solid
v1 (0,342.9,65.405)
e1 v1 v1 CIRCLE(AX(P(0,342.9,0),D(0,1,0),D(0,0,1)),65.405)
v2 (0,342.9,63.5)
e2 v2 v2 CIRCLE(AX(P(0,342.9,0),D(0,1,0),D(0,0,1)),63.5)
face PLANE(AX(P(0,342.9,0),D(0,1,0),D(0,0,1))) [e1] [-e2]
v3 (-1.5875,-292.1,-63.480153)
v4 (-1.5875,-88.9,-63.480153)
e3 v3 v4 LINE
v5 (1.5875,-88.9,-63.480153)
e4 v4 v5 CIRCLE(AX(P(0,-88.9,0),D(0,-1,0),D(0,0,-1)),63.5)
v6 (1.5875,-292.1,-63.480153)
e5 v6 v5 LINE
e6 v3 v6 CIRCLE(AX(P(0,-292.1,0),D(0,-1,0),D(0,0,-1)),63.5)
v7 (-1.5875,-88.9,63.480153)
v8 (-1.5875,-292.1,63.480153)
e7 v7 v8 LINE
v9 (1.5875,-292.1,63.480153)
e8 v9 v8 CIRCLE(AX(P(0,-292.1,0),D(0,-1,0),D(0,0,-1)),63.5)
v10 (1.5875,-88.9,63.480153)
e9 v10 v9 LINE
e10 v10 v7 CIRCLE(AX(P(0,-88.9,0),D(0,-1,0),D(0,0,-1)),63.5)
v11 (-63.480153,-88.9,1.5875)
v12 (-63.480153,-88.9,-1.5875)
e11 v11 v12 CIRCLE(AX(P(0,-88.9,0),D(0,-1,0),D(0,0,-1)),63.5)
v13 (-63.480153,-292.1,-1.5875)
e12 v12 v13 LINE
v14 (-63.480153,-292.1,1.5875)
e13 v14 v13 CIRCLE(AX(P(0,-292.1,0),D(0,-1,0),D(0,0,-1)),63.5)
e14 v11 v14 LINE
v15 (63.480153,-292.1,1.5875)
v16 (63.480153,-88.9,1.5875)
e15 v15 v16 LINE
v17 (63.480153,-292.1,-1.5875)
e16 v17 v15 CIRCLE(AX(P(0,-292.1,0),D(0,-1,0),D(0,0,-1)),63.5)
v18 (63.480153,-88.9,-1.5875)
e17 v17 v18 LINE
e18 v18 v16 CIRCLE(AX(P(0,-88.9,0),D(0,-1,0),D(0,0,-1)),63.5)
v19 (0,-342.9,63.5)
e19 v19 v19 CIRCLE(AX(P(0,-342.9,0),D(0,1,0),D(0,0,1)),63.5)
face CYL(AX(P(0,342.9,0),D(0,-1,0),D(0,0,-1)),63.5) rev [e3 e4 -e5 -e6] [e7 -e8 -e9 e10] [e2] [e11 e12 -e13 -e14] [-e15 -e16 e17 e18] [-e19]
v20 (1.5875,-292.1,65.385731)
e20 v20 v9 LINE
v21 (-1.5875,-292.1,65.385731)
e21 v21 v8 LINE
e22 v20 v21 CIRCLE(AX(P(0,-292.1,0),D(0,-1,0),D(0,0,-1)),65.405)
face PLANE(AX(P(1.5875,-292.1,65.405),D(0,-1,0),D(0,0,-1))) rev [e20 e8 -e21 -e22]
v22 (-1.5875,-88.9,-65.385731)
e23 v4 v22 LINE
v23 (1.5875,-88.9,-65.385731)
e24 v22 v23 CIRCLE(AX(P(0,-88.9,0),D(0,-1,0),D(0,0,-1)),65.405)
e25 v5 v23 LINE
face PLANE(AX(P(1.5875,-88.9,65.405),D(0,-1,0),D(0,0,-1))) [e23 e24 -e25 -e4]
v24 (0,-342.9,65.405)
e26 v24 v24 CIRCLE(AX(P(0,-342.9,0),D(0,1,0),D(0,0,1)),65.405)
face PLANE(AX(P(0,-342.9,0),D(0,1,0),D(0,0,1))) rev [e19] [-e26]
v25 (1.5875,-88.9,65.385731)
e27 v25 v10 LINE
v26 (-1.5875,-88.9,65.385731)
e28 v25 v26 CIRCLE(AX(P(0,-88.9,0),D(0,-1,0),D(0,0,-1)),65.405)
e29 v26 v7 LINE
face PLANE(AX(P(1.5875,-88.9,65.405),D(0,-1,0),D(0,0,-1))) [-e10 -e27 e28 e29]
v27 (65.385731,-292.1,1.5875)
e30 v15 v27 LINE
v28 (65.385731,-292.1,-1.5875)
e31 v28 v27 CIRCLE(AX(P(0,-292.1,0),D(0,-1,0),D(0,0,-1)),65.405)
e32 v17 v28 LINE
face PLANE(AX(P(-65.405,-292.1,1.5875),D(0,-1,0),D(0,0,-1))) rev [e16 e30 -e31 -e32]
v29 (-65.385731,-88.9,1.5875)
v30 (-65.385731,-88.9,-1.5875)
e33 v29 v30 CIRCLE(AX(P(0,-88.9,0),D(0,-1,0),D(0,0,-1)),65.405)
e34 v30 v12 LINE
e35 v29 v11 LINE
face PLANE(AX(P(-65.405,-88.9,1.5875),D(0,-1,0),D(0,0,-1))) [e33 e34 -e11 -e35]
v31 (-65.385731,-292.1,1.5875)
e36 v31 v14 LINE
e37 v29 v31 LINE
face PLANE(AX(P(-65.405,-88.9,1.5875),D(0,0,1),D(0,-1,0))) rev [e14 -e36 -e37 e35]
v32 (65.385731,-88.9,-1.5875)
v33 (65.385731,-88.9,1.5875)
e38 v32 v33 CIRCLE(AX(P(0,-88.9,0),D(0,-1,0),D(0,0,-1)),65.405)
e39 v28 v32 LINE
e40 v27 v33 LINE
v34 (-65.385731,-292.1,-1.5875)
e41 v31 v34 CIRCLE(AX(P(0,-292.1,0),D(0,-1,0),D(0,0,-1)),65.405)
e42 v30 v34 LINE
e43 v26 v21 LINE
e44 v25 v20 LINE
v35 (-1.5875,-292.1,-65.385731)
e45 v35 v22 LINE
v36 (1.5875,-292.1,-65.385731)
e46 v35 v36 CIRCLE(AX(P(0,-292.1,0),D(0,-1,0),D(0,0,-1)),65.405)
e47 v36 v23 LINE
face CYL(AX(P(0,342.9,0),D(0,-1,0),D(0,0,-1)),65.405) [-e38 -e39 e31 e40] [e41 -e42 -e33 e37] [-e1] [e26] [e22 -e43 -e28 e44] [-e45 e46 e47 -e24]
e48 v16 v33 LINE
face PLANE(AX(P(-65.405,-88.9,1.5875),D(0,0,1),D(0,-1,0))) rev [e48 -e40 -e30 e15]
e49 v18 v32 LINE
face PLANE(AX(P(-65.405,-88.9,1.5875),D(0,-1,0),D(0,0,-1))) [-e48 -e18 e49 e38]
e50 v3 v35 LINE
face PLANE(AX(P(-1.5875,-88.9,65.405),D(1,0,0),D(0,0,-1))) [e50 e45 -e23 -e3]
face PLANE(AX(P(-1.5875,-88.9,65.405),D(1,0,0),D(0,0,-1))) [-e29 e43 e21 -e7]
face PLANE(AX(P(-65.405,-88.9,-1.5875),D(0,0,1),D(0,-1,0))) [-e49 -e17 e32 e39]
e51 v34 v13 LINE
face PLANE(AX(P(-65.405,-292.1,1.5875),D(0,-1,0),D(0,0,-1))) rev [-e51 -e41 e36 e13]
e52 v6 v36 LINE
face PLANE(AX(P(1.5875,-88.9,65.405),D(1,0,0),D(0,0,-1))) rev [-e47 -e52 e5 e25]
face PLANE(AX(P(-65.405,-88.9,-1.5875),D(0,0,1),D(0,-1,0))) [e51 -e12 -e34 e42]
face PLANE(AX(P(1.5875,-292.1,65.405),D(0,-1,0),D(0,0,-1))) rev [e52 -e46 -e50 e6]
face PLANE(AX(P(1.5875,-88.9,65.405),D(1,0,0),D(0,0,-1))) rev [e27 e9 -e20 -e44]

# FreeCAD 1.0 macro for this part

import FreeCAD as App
import Part
import Sketcher
from FreeCAD import Vector
Q = App.Units.Quantity


def add_polygon(sketch, points):
    """Adds a closed chain of lines whose ends are joined by coincident constraints."""
    first, n = sketch.GeometryCount, len(points)
    for a, b in zip(points, points[1:] + points[:1]):
        sketch.addGeometry(Part.LineSegment(App.Vector(*a, 0), App.Vector(*b, 0)), False)
    for i in range(n):
        sketch.addConstraint(Sketcher.Constraint("Coincident", first + i, 2, first + (i + 1) % n, 1))

doc = App.newDocument("Part")
body = doc.addObject("PartDesign::Body", "Body")

# Sketch on XZ plane
sketch1 = body.newObject("Sketcher::SketchObject", "Sketch")
sketch1.AttachmentSupport = (doc.getObject("XZ_Plane"), [""])
sketch1.MapMode = "FlatFace"
sketch1.addGeometry([
    Part.Circle(Vector(0, 0, 0), Vector(0, 0, 1), 65),
    Part.Circle(Vector(0, 0, 0), Vector(0, 0, 1), 64),
], False)
sketch1.addConstraint([
    Sketcher.Constraint("Coincident", 0, 3, -1, 1),
    Sketcher.Constraint("Coincident", 1, 3, -1, 1),
    Sketcher.Constraint("Diameter", 1, Q("5 in")),
    Sketcher.Constraint("Diameter", 0, Q("5.15 in")),
])
pad1 = body.newObject("PartDesign::Pad", "Pad")
pad1.Profile = sketch1
pad1.Length = Q("27 in")
pad1.Midplane = True

# Sketch on YZ plane
sketch2 = body.newObject("Sketcher::SketchObject", "Sketch001")
sketch2.AttachmentSupport = (doc.getObject("YZ_Plane"), [""])
sketch2.MapMode = "FlatFace"
add_polygon(sketch2, [(-88.9, 1.6), (-292.1, 1.6), (-292.1, -1.6), (-88.9, -1.6)])  # lines 0-3
sketch2.addConstraint([
    Sketcher.Constraint("Horizontal", 0),
    Sketcher.Constraint("Vertical", 1),
    Sketcher.Constraint("Horizontal", 2),
    Sketcher.Constraint("Vertical", 3),
    Sketcher.Constraint("DistanceX", 0, 2, 0, 1, Q("8 in")),
    Sketcher.Constraint("DistanceX", 0, 2, -1, 1, Q("11.5 in")),
    Sketcher.Constraint("DistanceY", 1, 2, 1, 1, Q("0.125 in")),
    Sketcher.Constraint("DistanceY", -1, 1, 0, 2, Q("0.0625 in")),
])
pocket1 = body.newObject("PartDesign::Pocket", "Pocket")
pocket1.Profile = sketch2
pocket1.Length = 132.81
pocket1.Midplane = True
doc.recompute()

polarpattern = body.newObject("PartDesign::PolarPattern", "PolarPattern")
polarpattern.Originals = [pocket1]
polarpattern.Axis = (doc.getObject("Y_Axis"), [""])
polarpattern.Angle = 90
polarpattern.Occurrences = 2
polarpattern.Reversed = True
body.Tip = polarpattern

doc.recompute()
